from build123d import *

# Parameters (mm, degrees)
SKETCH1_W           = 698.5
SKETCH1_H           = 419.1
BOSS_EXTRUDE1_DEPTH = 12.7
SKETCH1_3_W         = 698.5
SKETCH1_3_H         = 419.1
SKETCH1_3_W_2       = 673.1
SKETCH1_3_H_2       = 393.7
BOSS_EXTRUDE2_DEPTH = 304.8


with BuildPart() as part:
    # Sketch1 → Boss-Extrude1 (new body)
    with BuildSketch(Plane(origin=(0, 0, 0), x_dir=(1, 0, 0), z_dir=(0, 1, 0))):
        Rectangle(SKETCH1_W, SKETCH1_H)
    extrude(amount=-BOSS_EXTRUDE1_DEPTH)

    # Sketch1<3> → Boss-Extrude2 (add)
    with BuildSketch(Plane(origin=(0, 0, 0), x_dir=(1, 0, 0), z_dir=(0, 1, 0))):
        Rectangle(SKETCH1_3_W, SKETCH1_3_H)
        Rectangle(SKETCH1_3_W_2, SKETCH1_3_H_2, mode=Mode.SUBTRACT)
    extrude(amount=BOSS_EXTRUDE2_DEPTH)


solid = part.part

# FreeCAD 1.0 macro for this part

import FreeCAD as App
import Part
import Sketcher

V = App.Vector
Q = App.Units.Quantity


def add_polygon(sketch, points):
    """Adds a closed chain of lines whose ends are joined by coincident constraints."""
    first, n = sketch.GeometryCount, len(points)
    for a, b in zip(points, points[1:] + points[:1]):
        sketch.addGeometry(Part.LineSegment(App.Vector(*a, 0), App.Vector(*b, 0)), False)
    for i in range(n):
        sketch.addConstraint(Sketcher.Constraint("Coincident", first + i, 2, first + (i + 1) % n, 1))

doc = App.newDocument("Part")
body = doc.addObject("PartDesign::Body", "Body")

sketch1 = body.newObject("Sketcher::SketchObject", "Sketch")
sketch1.AttachmentSupport = (doc.getObject("XZ_Plane"), [""])
sketch1.MapMode = "FlatFace"
add_polygon(sketch1, [(-349.25, -209.55), (-349.25, 209.55), (349.25, 209.55), (349.25, -209.55)])
sketch1.addConstraint([
    Sketcher.Constraint("Vertical", 0),
    Sketcher.Constraint("Horizontal", 1),
    Sketcher.Constraint("Vertical", 2),
    Sketcher.Constraint("Horizontal", 3),
    Sketcher.Constraint("Symmetric", 0, 2, 2, 2, -1, 1),
    Sketcher.Constraint("DistanceX", 1, 1, 1, 2, Q("27.5 in")),
    Sketcher.Constraint("DistanceY", 0, 1, 0, 2, Q("16.5 in")),
])
pad1 = body.newObject("PartDesign::Pad", "Pad")
pad1.Profile = sketch1
pad1.Length = Q("0.5 in")

sketch2 = body.newObject("Sketcher::SketchObject", "Sketch001")
sketch2.AttachmentSupport = (doc.getObject("XZ_Plane"), [""])
sketch2.MapMode = "FlatFace"
add_polygon(sketch2, [(-349.25, -209.55), (-349.25, 209.55), (349.25, 209.55), (349.25, -209.55)])
add_polygon(sketch2, [(336.55, 196.85), (-336.55, 196.85), (-336.55, -196.85), (336.55, -196.85)])
sketch2.addConstraint([
    Sketcher.Constraint("Vertical", 0),
    Sketcher.Constraint("Horizontal", 1),
    Sketcher.Constraint("Vertical", 2),
    Sketcher.Constraint("Horizontal", 3),
    Sketcher.Constraint("Horizontal", 4),
    Sketcher.Constraint("Vertical", 5),
    Sketcher.Constraint("Horizontal", 6),
    Sketcher.Constraint("Vertical", 7),
    Sketcher.Constraint("Symmetric", 0, 2, 2, 2, -1, 1),
    Sketcher.Constraint("Symmetric", 4, 2, 6, 2, -1, 1),
    Sketcher.Constraint("DistanceX", 1, 1, 1, 2, Q("27.5 in")),
    Sketcher.Constraint("DistanceX", 4, 2, 4, 1, Q("26.5 in")),
    Sketcher.Constraint("DistanceY", 0, 1, 0, 2, Q("16.5 in")),
    Sketcher.Constraint("DistanceY", 5, 2, 5, 1, Q("15.5 in")),
])
pad2 = body.newObject("PartDesign::Pad", "Pad001")
pad2.Profile = sketch2
pad2.Length = Q("12 in")
pad2.Reversed = True

doc.recompute()
